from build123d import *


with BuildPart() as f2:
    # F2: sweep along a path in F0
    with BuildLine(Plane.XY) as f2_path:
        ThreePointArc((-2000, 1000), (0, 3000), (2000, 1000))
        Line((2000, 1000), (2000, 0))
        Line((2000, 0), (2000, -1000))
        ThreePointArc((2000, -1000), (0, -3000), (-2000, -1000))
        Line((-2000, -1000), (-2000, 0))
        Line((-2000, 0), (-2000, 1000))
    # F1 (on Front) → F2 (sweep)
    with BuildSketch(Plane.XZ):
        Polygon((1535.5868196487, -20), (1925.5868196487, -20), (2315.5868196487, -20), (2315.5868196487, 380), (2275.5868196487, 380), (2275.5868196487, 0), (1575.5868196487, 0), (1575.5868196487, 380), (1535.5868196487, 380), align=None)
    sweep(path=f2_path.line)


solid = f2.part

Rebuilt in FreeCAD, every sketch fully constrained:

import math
import FreeCAD as App
import Part
import Sketcher

doc = App.newDocument("Part")
params = doc.addObject("Spreadsheet::Sheet", "Params")
for row, (alias, value) in enumerate([
    ("sketch1_width", "780 mm"),
    ("sketch1_width2", "40 mm"),
    ("sketch1_height", "400 mm"),
    ("sketch1_height2", "380 mm"),
    ("sketch2_radius", "2000 mm"),
    ("sketch2_height", "2000 mm"),
], start=1):
    params.set(f"A{row}", alias)
    params.set(f"B{row}", "=" + value)
    params.setAlias(f"B{row}", alias)

body = doc.addObject("PartDesign::Body", "Body")

sketch1 = doc.addObject("Sketcher::SketchObject", "Sketch")
body.addObject(sketch1)
sketch1.AttachmentSupport = (doc.XZ_Plane, [""])
sketch1.MapMode = "FlatFace"
sketch1.addGeometry(Part.LineSegment(App.Vector(1536, -20, 0), App.Vector(2316, -20, 0)), False)
sketch1.addGeometry(Part.LineSegment(App.Vector(2316, -20, 0), App.Vector(2316, 380, 0)), False)
sketch1.addGeometry(Part.LineSegment(App.Vector(2316, 380, 0), App.Vector(2276, 380, 0)), False)
sketch1.addGeometry(Part.LineSegment(App.Vector(2276, 380, 0), App.Vector(2276, 0, 0)), False)
sketch1.addGeometry(Part.LineSegment(App.Vector(2276, 0, 0), App.Vector(1576, 0, 0)), False)
sketch1.addGeometry(Part.LineSegment(App.Vector(1576, 0, 0), App.Vector(1576, 380, 0)), False)
sketch1.addGeometry(Part.LineSegment(App.Vector(1576, 380, 0), App.Vector(1536, 380, 0)), False)
sketch1.addGeometry(Part.LineSegment(App.Vector(1536, 380, 0), App.Vector(1536, -20, 0)), False)
sketch1.addConstraint(Sketcher.Constraint("Coincident", 0, 2, 1, 1))
sketch1.addConstraint(Sketcher.Constraint("Coincident", 1, 2, 2, 1))
sketch1.addConstraint(Sketcher.Constraint("Coincident", 2, 2, 3, 1))
sketch1.addConstraint(Sketcher.Constraint("Coincident", 3, 2, 4, 1))
sketch1.addConstraint(Sketcher.Constraint("Coincident", 4, 2, 5, 1))
sketch1.addConstraint(Sketcher.Constraint("Coincident", 5, 2, 6, 1))
sketch1.addConstraint(Sketcher.Constraint("Coincident", 6, 2, 7, 1))
sketch1.addConstraint(Sketcher.Constraint("Coincident", 7, 2, 0, 1))
sketch1.addConstraint(Sketcher.Constraint("Horizontal", 0))
sketch1.addConstraint(Sketcher.Constraint("Vertical", 1))
sketch1.addConstraint(Sketcher.Constraint("Horizontal", 2))
sketch1.addConstraint(Sketcher.Constraint("Vertical", 3))
sketch1.addConstraint(Sketcher.Constraint("Horizontal", 4))
sketch1.addConstraint(Sketcher.Constraint("Vertical", 5))
sketch1.addConstraint(Sketcher.Constraint("Horizontal", 6))
sketch1.addConstraint(Sketcher.Constraint("Vertical", 7))
sketch1.addConstraint(Sketcher.Constraint("PointOnObject", 3, 2, -1))
sketch1.addConstraint(Sketcher.Constraint("Horizontal", 2, 2, 5, 2))
sketch1.addConstraint(Sketcher.Constraint("Equal", 2, 6))
sketch1.addConstraint(Sketcher.Constraint("DistanceX", 0, 1, 0, 2, 780.0))
sketch1.addConstraint(Sketcher.Constraint("DistanceX", 2, 2, 2, 1, 40.0))
sketch1.addConstraint(Sketcher.Constraint("DistanceY", 1, 1, 1, 2, 400.0))
sketch1.addConstraint(Sketcher.Constraint("DistanceY", 3, 2, 3, 1, 380.0))
sketch1.addConstraint(Sketcher.Constraint("DistanceX", -1, 1, 0, 2, 2315.58682))
sketch1.setExpression("Constraints[19]", "Params.sketch1_width")
sketch1.setExpression("Constraints[20]", "Params.sketch1_width2")
sketch1.setExpression("Constraints[21]", "Params.sketch1_height")
sketch1.setExpression("Constraints[22]", "Params.sketch1_height2")

sketch2 = doc.addObject("Sketcher::SketchObject", "Sketch001")
body.addObject(sketch2)
sketch2.AttachmentSupport = (doc.XY_Plane, [""])
sketch2.MapMode = "FlatFace"
sketch2.addGeometry(Part.ArcOfCircle(Part.Circle(App.Vector(0, 1000, 0), App.Vector(0, 0, 1), 2000), math.radians(0), math.radians(180)), False)
sketch2.addGeometry(Part.LineSegment(App.Vector(2000, 1000, 0), App.Vector(2000, -1000, 0)), False)
sketch2.addGeometry(Part.ArcOfCircle(Part.Circle(App.Vector(0, -1000, 0), App.Vector(0, 0, 1), 2000), math.radians(180), math.radians(360)), False)
sketch2.addGeometry(Part.LineSegment(App.Vector(-2000, -1000, 0), App.Vector(-2000, 1000, 0)), False)
sketch2.addConstraint(Sketcher.Constraint("Coincident", 0, 1, 1, 1))
sketch2.addConstraint(Sketcher.Constraint("Coincident", 1, 2, 2, 2))
sketch2.addConstraint(Sketcher.Constraint("Coincident", 2, 1, 3, 1))
sketch2.addConstraint(Sketcher.Constraint("Coincident", 3, 2, 0, 2))
sketch2.addConstraint(Sketcher.Constraint("Vertical", 1))
sketch2.addConstraint(Sketcher.Constraint("Vertical", 3))
sketch2.addConstraint(Sketcher.Constraint("Symmetric", 0, 3, 2, 3, -1, 1))
sketch2.addConstraint(Sketcher.Constraint("Horizontal", 2, 3, 1, 2))
sketch2.addConstraint(Sketcher.Constraint("Equal", 1, 3))
sketch2.addConstraint(Sketcher.Constraint("Radius", 0, 2000.0))
sketch2.addConstraint(Sketcher.Constraint("DistanceY", 1, 2, 1, 1, 2000.0))
sketch2.addConstraint(Sketcher.Constraint("DistanceY", -1, 1, 0, 3, 1000.0))
sketch2.addConstraint(Sketcher.Constraint("DistanceY", -1, 1, 3, 2, 1000.0))
sketch2.setExpression("Constraints[9]", "Params.sketch2_radius")
sketch2.setExpression("Constraints[10]", "Params.sketch2_height")
doc.recompute()

additivepipe = doc.addObject("PartDesign::AdditivePipe", "AdditivePipe")
body.addObject(additivepipe)
additivepipe.Profile = sketch1
additivepipe.Spine = (sketch2, ["Edge1", "Edge2", "Edge3", "Edge4"])

doc.recompute()
